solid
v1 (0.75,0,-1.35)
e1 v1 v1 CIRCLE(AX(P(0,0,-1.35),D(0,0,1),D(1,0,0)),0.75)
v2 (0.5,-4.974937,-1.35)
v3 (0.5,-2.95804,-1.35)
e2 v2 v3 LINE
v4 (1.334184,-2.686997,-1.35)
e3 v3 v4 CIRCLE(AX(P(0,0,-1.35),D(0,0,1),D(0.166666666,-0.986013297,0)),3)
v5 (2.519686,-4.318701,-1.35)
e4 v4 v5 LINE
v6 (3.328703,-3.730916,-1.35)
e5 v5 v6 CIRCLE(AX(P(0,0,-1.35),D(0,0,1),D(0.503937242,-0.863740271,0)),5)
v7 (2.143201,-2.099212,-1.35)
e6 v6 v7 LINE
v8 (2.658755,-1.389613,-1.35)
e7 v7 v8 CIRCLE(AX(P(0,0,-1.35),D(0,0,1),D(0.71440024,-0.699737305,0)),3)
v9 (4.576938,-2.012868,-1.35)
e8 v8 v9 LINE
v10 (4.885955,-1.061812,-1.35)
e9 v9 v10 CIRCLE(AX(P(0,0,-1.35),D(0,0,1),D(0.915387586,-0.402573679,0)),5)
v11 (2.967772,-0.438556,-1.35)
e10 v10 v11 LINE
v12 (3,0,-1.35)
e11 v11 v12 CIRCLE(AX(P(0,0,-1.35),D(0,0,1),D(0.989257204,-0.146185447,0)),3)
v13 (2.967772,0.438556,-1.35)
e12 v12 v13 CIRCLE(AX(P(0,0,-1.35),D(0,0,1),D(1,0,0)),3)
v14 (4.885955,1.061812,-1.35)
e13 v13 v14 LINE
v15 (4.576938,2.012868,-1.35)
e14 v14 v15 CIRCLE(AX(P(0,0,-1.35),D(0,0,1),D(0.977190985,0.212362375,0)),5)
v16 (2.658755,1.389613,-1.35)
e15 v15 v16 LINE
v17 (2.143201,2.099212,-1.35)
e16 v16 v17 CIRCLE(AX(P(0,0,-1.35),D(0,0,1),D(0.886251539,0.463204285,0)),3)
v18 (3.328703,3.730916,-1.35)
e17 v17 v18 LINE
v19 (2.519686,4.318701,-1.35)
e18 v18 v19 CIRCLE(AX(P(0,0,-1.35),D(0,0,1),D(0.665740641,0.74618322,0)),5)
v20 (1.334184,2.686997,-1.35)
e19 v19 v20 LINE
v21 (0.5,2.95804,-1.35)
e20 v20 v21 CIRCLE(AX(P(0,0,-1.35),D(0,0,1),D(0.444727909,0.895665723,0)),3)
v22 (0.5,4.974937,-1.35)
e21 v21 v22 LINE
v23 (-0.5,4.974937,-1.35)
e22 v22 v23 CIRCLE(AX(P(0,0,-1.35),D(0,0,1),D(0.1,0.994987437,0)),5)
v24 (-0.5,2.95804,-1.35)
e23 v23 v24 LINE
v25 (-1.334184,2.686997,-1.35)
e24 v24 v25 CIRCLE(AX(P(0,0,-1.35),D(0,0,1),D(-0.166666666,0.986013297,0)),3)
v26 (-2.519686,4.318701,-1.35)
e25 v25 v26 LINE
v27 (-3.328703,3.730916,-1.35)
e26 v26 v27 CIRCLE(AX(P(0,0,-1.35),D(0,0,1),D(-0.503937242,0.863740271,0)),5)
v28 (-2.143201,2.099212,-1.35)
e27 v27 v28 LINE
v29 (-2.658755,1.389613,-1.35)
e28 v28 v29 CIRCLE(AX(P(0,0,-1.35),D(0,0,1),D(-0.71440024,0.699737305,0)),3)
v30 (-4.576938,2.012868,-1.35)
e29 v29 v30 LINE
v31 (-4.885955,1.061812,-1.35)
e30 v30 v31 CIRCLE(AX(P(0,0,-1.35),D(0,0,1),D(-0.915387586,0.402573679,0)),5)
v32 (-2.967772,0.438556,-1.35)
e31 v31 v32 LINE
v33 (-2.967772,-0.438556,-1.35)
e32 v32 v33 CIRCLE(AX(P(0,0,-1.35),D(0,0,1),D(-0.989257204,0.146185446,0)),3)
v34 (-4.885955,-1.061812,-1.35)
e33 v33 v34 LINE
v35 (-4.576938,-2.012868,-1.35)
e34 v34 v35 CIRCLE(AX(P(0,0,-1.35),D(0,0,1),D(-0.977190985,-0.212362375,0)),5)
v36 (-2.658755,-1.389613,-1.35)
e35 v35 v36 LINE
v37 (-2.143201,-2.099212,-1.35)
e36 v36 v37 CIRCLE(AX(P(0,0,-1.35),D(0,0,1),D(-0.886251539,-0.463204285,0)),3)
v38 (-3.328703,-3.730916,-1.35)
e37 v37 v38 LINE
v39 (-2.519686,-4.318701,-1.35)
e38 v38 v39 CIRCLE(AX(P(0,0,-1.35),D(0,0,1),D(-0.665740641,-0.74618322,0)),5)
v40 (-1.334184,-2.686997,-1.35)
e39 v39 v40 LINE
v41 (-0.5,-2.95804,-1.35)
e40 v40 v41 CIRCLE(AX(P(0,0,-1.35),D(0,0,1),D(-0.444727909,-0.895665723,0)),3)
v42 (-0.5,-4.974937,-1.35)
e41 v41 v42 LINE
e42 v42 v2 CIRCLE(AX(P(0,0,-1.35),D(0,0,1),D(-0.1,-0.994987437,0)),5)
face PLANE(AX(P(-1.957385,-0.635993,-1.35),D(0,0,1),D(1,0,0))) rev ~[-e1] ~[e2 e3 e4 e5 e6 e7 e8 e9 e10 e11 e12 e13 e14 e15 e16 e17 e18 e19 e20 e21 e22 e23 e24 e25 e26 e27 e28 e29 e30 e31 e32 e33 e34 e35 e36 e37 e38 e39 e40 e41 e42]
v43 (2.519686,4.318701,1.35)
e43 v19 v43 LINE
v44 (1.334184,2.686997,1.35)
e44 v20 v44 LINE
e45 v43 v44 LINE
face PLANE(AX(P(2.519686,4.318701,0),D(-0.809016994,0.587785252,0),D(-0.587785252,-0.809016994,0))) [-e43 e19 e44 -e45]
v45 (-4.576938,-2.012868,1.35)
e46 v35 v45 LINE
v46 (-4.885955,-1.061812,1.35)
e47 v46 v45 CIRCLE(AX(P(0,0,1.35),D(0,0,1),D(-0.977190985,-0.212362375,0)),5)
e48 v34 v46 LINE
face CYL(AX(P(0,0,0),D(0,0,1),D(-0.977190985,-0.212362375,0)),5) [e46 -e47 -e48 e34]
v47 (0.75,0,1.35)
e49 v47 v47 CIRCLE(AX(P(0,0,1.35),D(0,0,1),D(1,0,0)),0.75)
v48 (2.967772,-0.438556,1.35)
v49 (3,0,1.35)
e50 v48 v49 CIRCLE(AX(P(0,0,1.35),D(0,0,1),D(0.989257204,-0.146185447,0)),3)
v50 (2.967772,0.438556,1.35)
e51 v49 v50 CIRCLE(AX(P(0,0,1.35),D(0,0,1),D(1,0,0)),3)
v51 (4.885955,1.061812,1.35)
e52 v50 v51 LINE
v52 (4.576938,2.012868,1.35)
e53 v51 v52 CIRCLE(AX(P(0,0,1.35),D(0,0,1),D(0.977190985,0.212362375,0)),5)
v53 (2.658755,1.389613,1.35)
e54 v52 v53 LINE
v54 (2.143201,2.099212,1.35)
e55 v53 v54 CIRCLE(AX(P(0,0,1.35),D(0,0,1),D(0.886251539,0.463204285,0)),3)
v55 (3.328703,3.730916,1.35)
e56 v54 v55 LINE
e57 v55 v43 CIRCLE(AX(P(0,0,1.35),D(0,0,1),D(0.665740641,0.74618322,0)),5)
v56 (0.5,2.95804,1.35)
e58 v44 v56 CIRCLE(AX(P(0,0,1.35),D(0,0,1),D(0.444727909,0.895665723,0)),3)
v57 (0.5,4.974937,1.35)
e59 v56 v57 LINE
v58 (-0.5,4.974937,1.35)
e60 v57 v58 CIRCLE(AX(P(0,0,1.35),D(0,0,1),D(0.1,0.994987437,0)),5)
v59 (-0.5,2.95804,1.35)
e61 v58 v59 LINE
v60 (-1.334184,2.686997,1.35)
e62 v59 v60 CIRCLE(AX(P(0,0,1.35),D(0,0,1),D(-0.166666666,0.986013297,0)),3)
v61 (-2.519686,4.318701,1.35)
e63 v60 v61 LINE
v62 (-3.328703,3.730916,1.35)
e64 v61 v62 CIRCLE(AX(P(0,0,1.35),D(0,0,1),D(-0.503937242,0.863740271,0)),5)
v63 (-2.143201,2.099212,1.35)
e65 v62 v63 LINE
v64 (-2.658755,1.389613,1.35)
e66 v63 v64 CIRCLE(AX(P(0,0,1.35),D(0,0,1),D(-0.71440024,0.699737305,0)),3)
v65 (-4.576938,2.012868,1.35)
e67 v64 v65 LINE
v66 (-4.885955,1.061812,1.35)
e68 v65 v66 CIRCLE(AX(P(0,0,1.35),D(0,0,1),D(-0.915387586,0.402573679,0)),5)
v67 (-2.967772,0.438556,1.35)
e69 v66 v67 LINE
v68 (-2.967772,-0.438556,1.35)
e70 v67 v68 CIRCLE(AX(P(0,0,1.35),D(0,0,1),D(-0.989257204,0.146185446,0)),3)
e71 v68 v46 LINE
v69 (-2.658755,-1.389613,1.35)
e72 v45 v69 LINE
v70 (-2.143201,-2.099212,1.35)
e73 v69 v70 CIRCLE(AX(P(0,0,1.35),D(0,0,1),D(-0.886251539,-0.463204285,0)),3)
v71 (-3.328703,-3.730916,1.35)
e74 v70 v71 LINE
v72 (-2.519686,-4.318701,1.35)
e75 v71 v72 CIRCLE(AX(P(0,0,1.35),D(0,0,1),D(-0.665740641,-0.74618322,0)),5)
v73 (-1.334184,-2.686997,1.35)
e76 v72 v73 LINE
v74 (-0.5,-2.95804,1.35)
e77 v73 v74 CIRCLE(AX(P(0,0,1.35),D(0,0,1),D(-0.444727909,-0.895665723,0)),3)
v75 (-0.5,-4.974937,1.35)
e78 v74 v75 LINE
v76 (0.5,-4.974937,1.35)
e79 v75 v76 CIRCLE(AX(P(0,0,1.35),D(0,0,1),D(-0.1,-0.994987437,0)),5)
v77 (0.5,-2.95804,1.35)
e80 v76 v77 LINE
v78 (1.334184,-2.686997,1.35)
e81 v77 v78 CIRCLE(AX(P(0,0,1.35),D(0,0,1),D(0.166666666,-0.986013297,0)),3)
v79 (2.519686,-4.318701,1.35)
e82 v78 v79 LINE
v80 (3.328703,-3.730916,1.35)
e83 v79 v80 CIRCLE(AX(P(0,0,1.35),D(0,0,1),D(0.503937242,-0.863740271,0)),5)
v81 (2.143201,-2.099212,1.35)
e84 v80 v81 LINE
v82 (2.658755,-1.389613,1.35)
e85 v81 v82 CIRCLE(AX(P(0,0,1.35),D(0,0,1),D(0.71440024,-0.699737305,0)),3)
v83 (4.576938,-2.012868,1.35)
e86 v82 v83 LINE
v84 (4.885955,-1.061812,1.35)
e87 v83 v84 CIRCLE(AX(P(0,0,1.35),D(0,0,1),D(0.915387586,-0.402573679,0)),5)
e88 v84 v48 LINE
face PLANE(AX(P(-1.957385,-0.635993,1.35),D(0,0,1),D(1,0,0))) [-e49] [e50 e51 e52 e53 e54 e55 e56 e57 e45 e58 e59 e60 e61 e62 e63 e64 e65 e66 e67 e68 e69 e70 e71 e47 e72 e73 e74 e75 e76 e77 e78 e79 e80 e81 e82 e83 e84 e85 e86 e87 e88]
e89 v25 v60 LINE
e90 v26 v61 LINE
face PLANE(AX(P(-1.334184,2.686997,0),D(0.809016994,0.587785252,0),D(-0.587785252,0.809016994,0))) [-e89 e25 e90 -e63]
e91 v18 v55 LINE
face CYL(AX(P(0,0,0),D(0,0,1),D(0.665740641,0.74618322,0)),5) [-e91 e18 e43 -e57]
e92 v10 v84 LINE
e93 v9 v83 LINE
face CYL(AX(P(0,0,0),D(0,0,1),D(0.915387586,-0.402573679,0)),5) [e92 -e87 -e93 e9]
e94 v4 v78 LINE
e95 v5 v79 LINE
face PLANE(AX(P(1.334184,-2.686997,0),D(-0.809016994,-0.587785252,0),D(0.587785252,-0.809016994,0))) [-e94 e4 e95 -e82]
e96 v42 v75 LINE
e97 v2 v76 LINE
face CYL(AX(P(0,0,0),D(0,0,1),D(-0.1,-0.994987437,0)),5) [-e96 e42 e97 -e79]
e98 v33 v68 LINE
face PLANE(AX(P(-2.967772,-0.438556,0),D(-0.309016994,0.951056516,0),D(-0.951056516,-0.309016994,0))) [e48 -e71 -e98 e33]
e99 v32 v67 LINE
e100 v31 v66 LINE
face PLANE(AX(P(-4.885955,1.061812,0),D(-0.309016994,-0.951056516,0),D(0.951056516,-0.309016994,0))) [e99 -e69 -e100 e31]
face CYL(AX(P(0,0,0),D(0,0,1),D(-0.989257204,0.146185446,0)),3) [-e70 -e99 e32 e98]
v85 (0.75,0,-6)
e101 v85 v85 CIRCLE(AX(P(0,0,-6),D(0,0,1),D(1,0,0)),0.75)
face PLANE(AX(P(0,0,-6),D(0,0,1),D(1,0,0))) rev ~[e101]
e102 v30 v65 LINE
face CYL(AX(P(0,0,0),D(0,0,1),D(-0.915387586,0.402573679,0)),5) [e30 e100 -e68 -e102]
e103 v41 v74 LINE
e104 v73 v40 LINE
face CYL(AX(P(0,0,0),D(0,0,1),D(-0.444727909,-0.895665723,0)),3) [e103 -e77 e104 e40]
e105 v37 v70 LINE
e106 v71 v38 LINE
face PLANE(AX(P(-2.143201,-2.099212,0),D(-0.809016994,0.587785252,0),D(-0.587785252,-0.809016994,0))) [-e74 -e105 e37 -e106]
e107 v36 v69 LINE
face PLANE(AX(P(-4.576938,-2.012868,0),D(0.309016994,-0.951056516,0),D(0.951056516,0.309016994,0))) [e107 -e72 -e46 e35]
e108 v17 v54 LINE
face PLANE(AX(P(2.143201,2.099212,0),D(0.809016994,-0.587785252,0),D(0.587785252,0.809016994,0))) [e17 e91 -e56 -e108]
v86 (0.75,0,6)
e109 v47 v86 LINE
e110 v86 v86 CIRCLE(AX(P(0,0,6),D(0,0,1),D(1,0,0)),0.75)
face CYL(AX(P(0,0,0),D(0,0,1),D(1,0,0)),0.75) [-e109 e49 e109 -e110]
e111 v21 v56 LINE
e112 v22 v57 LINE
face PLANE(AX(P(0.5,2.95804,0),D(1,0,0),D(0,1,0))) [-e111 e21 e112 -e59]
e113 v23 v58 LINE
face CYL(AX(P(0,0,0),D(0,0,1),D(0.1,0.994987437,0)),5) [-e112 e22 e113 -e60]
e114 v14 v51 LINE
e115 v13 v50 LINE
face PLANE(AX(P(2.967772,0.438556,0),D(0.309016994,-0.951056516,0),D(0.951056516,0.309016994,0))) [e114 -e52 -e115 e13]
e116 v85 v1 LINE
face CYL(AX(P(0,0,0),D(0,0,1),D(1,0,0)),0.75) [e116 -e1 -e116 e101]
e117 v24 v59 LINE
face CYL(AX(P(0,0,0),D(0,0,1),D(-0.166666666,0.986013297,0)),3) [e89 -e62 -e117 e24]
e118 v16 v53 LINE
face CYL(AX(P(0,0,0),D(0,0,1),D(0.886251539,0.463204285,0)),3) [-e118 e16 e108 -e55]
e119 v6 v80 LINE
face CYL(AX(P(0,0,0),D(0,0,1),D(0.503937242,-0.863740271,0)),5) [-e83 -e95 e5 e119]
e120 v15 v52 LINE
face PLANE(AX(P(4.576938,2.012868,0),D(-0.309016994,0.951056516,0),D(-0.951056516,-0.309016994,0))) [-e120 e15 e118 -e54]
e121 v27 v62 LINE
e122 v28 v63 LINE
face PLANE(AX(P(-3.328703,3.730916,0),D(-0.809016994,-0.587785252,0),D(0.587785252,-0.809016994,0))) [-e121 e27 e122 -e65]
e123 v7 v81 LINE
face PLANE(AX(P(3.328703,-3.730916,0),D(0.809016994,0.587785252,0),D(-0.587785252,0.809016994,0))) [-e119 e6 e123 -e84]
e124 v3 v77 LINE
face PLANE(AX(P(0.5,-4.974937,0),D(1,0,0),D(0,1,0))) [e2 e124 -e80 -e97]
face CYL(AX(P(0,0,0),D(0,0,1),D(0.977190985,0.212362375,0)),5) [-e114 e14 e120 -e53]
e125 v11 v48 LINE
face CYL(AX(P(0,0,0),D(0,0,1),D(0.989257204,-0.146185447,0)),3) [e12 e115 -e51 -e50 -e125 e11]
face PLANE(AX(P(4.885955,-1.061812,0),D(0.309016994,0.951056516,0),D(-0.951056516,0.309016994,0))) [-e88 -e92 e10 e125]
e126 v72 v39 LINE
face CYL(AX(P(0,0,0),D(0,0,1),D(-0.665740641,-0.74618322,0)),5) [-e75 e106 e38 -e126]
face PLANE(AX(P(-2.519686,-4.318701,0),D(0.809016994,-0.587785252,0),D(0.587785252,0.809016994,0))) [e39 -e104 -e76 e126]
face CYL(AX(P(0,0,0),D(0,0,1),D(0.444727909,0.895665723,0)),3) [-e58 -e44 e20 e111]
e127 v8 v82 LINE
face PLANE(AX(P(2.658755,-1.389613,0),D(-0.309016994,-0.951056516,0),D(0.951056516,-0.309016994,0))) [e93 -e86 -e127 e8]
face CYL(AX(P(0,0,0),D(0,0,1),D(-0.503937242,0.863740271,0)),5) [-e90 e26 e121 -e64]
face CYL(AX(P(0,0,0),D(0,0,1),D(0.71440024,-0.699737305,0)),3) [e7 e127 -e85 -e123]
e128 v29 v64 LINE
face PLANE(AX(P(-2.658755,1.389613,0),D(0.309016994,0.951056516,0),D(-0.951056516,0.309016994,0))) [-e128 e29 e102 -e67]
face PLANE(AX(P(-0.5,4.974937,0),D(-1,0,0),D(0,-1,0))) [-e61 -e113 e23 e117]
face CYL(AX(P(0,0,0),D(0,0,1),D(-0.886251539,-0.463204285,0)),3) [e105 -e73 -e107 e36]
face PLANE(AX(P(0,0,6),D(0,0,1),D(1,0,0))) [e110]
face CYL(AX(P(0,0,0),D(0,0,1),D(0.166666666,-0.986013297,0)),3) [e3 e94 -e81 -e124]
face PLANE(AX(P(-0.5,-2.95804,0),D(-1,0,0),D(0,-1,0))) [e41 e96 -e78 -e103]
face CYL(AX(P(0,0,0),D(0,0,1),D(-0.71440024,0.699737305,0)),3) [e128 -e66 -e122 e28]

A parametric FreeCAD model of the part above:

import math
import FreeCAD as App
import Part
import Sketcher

V = App.Vector
Q = App.Units.Quantity

doc = App.newDocument("Part")
params = doc.addObject("Spreadsheet::Sheet", "Params")
for row, (alias, value) in enumerate([
    ("sketch1_radius", "3 mm"),
    ("sketch1_radius2", "5 mm"),
    ("pad1_length", "2.7 mm"),
    ("sketch2_diameter", "1.5 mm"),
    ("pad2_length", "12 mm"),
], start=1):
    params.set(f"A{row}", alias)
    params.set(f"B{row}", "=" + value)
    params.setAlias(f"B{row}", alias)

body = doc.addObject("PartDesign::Body", "Body")

sketch1 = body.newObject("Sketcher::SketchObject", "Sketch")
sketch1.AttachmentSupport = (doc.getObject("XY_Plane"), [""])
sketch1.MapMode = "FlatFace"
sketch1.addGeometry([
    Part.ArcOfCircle(Part.Circle(V(0, 0, 0), V(0, 0, 1), 3), math.radians(-116.41), math.radians(-99.59)),
    Part.LineSegment(V(-0.5, -2.96, 0), V(-0.5, -4.97, 0)),
    Part.ArcOfCircle(Part.Circle(V(0, 0, 0), V(0, 0, 1), 5), math.radians(-95.74), math.radians(-84.26)),
    Part.LineSegment(V(0.5, -4.97, 0), V(0.5, -2.96, 0)),
    Part.ArcOfCircle(Part.Circle(V(0, 0, 0), V(0, 0, 1), 3), math.radians(-80.41), math.radians(-63.59)),
    Part.LineSegment(V(1.33, -2.69, 0), V(2.52, -4.32, 0)),
    Part.ArcOfCircle(Part.Circle(V(0, 0, 0), V(0, 0, 1), 5), math.radians(-59.74), math.radians(-48.26)),
    Part.LineSegment(V(3.33, -3.73, 0), V(2.14, -2.1, 0)),
    Part.ArcOfCircle(Part.Circle(V(0, 0, 0), V(0, 0, 1), 3), math.radians(-44.41), math.radians(-27.59)),
    Part.LineSegment(V(2.66, -1.39, 0), V(4.58, -2.01, 0)),
    Part.ArcOfCircle(Part.Circle(V(0, 0, 0), V(0, 0, 1), 5), math.radians(-23.74), math.radians(-12.26)),
    Part.LineSegment(V(4.89, -1.06, 0), V(2.97, -0.44, 0)),
    Part.ArcOfCircle(Part.Circle(V(0, 0, 0), V(0, 0, 1), 3), math.radians(-8.41), math.radians(0)),
    Part.ArcOfCircle(Part.Circle(V(0, 0, 0), V(0, 0, 1), 3), math.radians(0), math.radians(8.41)),
    Part.LineSegment(V(2.97, 0.44, 0), V(4.89, 1.06, 0)),
    Part.ArcOfCircle(Part.Circle(V(0, 0, 0), V(0, 0, 1), 5), math.radians(12.26), math.radians(23.74)),
    Part.LineSegment(V(4.58, 2.01, 0), V(2.66, 1.39, 0)),
    Part.ArcOfCircle(Part.Circle(V(0, 0, 0), V(0, 0, 1), 3), math.radians(27.59), math.radians(44.41)),
    Part.LineSegment(V(2.14, 2.1, 0), V(3.33, 3.73, 0)),
    Part.ArcOfCircle(Part.Circle(V(0, 0, 0), V(0, 0, 1), 5), math.radians(48.26), math.radians(59.74)),
    Part.LineSegment(V(2.52, 4.32, 0), V(1.33, 2.69, 0)),
    Part.ArcOfCircle(Part.Circle(V(0, 0, 0), V(0, 0, 1), 3), math.radians(63.59), math.radians(80.41)),
    Part.LineSegment(V(0.5, 2.96, 0), V(0.5, 4.97, 0)),
    Part.ArcOfCircle(Part.Circle(V(0, 0, 0), V(0, 0, 1), 5), math.radians(84.26), math.radians(95.74)),
    Part.LineSegment(V(-0.5, 4.97, 0), V(-0.5, 2.96, 0)),
    Part.ArcOfCircle(Part.Circle(V(0, 0, 0), V(0, 0, 1), 3), math.radians(99.59), math.radians(116.41)),
    Part.LineSegment(V(-1.33, 2.69, 0), V(-2.52, 4.32, 0)),
    Part.ArcOfCircle(Part.Circle(V(0, 0, 0), V(0, 0, 1), 5), math.radians(120.26), math.radians(131.74)),
    Part.LineSegment(V(-3.33, 3.73, 0), V(-2.14, 2.1, 0)),
    Part.ArcOfCircle(Part.Circle(V(0, 0, 0), V(0, 0, 1), 3), math.radians(135.59), math.radians(152.41)),
    Part.LineSegment(V(-2.66, 1.39, 0), V(-4.58, 2.01, 0)),
    Part.ArcOfCircle(Part.Circle(V(0, 0, 0), V(0, 0, 1), 5), math.radians(156.26), math.radians(167.74)),
    Part.LineSegment(V(-4.89, 1.06, 0), V(-2.97, 0.44, 0)),
    Part.ArcOfCircle(Part.Circle(V(0, 0, 0), V(0, 0, 1), 3), math.radians(171.59), math.radians(188.41)),
    Part.LineSegment(V(-2.97, -0.44, 0), V(-4.89, -1.06, 0)),
    Part.ArcOfCircle(Part.Circle(V(0, 0, 0), V(0, 0, 1), 5), math.radians(-167.74), math.radians(-156.26)),
    Part.LineSegment(V(-4.58, -2.01, 0), V(-2.66, -1.39, 0)),
    Part.ArcOfCircle(Part.Circle(V(0, 0, 0), V(0, 0, 1), 3), math.radians(-152.41), math.radians(-135.59)),
    Part.LineSegment(V(-2.14, -2.1, 0), V(-3.33, -3.73, 0)),
    Part.ArcOfCircle(Part.Circle(V(0, 0, 0), V(0, 0, 1), 5), math.radians(-131.74), math.radians(-120.26)),
    Part.LineSegment(V(-2.52, -4.32, 0), V(-1.33, -2.69, 0)),
], False)
sketch1.addConstraint([
    Sketcher.Constraint("Coincident", 0, 2, 1, 1),
    Sketcher.Constraint("Coincident", 1, 2, 2, 1),
    Sketcher.Constraint("Coincident", 2, 2, 3, 1),
    Sketcher.Constraint("Coincident", 3, 2, 4, 1),
    Sketcher.Constraint("Coincident", 4, 2, 5, 1),
    Sketcher.Constraint("Coincident", 5, 2, 6, 1),
    Sketcher.Constraint("Coincident", 6, 2, 7, 1),
    Sketcher.Constraint("Coincident", 7, 2, 8, 1),
    Sketcher.Constraint("Coincident", 8, 2, 9, 1),
    Sketcher.Constraint("Coincident", 9, 2, 10, 1),
    Sketcher.Constraint("Coincident", 10, 2, 11, 1),
    Sketcher.Constraint("Coincident", 11, 2, 12, 1),
    Sketcher.Constraint("Tangent", 12, 2, 13, 1),
    Sketcher.Constraint("Coincident", 13, 2, 14, 1),
    Sketcher.Constraint("Coincident", 14, 2, 15, 1),
    Sketcher.Constraint("Coincident", 15, 2, 16, 1),
    Sketcher.Constraint("Coincident", 16, 2, 17, 1),
    Sketcher.Constraint("Coincident", 17, 2, 18, 1),
    Sketcher.Constraint("Coincident", 18, 2, 19, 1),
    Sketcher.Constraint("Coincident", 19, 2, 20, 1),
    Sketcher.Constraint("Coincident", 20, 2, 21, 1),
    Sketcher.Constraint("Coincident", 21, 2, 22, 1),
    Sketcher.Constraint("Coincident", 22, 2, 23, 1),
    Sketcher.Constraint("Coincident", 23, 2, 24, 1),
    Sketcher.Constraint("Coincident", 24, 2, 25, 1),
    Sketcher.Constraint("Coincident", 25, 2, 26, 1),
    Sketcher.Constraint("Coincident", 26, 2, 27, 1),
    Sketcher.Constraint("Coincident", 27, 2, 28, 1),
    Sketcher.Constraint("Coincident", 28, 2, 29, 1),
    Sketcher.Constraint("Coincident", 29, 2, 30, 1),
    Sketcher.Constraint("Coincident", 30, 2, 31, 1),
    Sketcher.Constraint("Coincident", 31, 2, 32, 1),
    Sketcher.Constraint("Coincident", 32, 2, 33, 1),
    Sketcher.Constraint("Coincident", 33, 2, 34, 1),
    Sketcher.Constraint("Coincident", 34, 2, 35, 1),
    Sketcher.Constraint("Coincident", 35, 2, 36, 1),
    Sketcher.Constraint("Coincident", 36, 2, 37, 1),
    Sketcher.Constraint("Coincident", 37, 2, 38, 1),
    Sketcher.Constraint("Coincident", 38, 2, 39, 1),
    Sketcher.Constraint("Coincident", 39, 2, 40, 1),
    Sketcher.Constraint("Coincident", 40, 2, 0, 1),
    Sketcher.Constraint("Vertical", 1),
    Sketcher.Constraint("Vertical", 3),
    Sketcher.Constraint("Vertical", 22),
    Sketcher.Constraint("Vertical", 24),
    Sketcher.Constraint("Coincident", 0, 3, -1, 1),
    Sketcher.Constraint("Coincident", 2, 3, -1, 1),
    Sketcher.Constraint("Coincident", 4, 3, -1, 1),
    Sketcher.Constraint("Coincident", 6, 3, -1, 1),
    Sketcher.Constraint("Coincident", 8, 3, -1, 1),
    Sketcher.Constraint("Coincident", 10, 3, -1, 1),
    Sketcher.Constraint("Coincident", 12, 3, -1, 1),
    Sketcher.Constraint("Coincident", 15, 3, -1, 1),
    Sketcher.Constraint("Coincident", 17, 3, -1, 1),
    Sketcher.Constraint("Coincident", 19, 3, -1, 1),
    Sketcher.Constraint("Coincident", 21, 3, -1, 1),
    Sketcher.Constraint("Coincident", 23, 3, -1, 1),
    Sketcher.Constraint("Coincident", 25, 3, -1, 1),
    Sketcher.Constraint("Coincident", 27, 3, -1, 1),
    Sketcher.Constraint("Coincident", 29, 3, -1, 1),
    Sketcher.Constraint("Coincident", 31, 3, -1, 1),
    Sketcher.Constraint("Coincident", 33, 3, -1, 1),
    Sketcher.Constraint("Coincident", 35, 3, -1, 1),
    Sketcher.Constraint("Coincident", 37, 3, -1, 1),
    Sketcher.Constraint("Coincident", 39, 3, -1, 1),
    Sketcher.Constraint("Equal", 0, 4),
    Sketcher.Constraint("Equal", 2, 6),
    Sketcher.Constraint("Equal", 4, 8),
    Sketcher.Constraint("Equal", 6, 10),
    Sketcher.Constraint("Equal", 8, 12),
    Sketcher.Constraint("Equal", 12, 13),
    Sketcher.Constraint("Equal", 10, 15),
    Sketcher.Constraint("Equal", 13, 17),
    Sketcher.Constraint("Equal", 15, 19),
    Sketcher.Constraint("Equal", 17, 21),
    Sketcher.Constraint("Equal", 19, 23),
    Sketcher.Constraint("Equal", 21, 25),
    Sketcher.Constraint("Equal", 23, 27),
    Sketcher.Constraint("Equal", 25, 29),
    Sketcher.Constraint("Equal", 27, 31),
    Sketcher.Constraint("Equal", 29, 33),
    Sketcher.Constraint("Equal", 31, 35),
    Sketcher.Constraint("Equal", 33, 37),
    Sketcher.Constraint("Equal", 35, 39),
    Sketcher.Constraint("PointOnObject", 12, 2, -1),
    Sketcher.Constraint("Parallel", 5, 7),
    Sketcher.Constraint("Parallel", 9, 11),
    Sketcher.Constraint("Parallel", 14, 16),
    Sketcher.Constraint("Parallel", 18, 20),
    Sketcher.Constraint("Parallel", 7, 26),
    Sketcher.Constraint("Parallel", 26, 28),
    Sketcher.Constraint("Parallel", 11, 30),
    Sketcher.Constraint("Parallel", 30, 32),
    Sketcher.Constraint("Parallel", 16, 34),
    Sketcher.Constraint("Parallel", 34, 36),
    Sketcher.Constraint("Parallel", 20, 38),
    Sketcher.Constraint("Parallel", 38, 40),
    Sketcher.Constraint("Horizontal", 1, 2, 2, 2),
    Sketcher.Constraint("Horizontal", 22, 2, 23, 2),
    Sketcher.Constraint("Horizontal", 20, 2, 25, 2),
    Sketcher.Constraint("Horizontal", 19, 2, 26, 2),
    Sketcher.Constraint("Horizontal", 18, 2, 27, 2),
    Sketcher.Constraint("Horizontal", 16, 2, 29, 2),
    Sketcher.Constraint("Horizontal", 15, 2, 30, 2),
    Sketcher.Constraint("Horizontal", 14, 2, 31, 2),
    Sketcher.Constraint("Horizontal", 11, 2, 33, 2),
    Sketcher.Constraint("Horizontal", 9, 2, 35, 2),
    Sketcher.Constraint("Horizontal", 7, 2, 37, 2),
    Sketcher.Constraint("Horizontal", 5, 2, 39, 2),
    Sketcher.Constraint("Vertical", 11, 2, 13, 2),
    Sketcher.Constraint("Vertical", 9, 2, 15, 2),
    Sketcher.Constraint("Vertical", 7, 2, 17, 2),
    Sketcher.Constraint("Vertical", 5, 2, 19, 2),
    Sketcher.Constraint("Vertical", 3, 2, 21, 2),
    Sketcher.Constraint("Equal", 5, 7),
    Sketcher.Constraint("Equal", 7, 9),
    Sketcher.Constraint("Equal", 9, 11),
    Sketcher.Constraint("Radius", 0, 3.0),
    Sketcher.Constraint("Radius", 2, 5.0),
    Sketcher.Constraint("Angle", 5, Q("-54 deg")),
    Sketcher.Constraint("Angle", 9, Q("-18 deg")),
    Sketcher.Constraint("DistanceX", 0, 2, -1, 1, 0.5),
    Sketcher.Constraint("DistanceY", 5, 2, -1, 1, 4.318701),
])
sketch1.setExpression("Constraints[117]", "Params.sketch1_radius")
sketch1.setExpression("Constraints[118]", "Params.sketch1_radius2")
pad1 = body.newObject("PartDesign::Pad", "Pad")
pad1.Profile = sketch1
pad1.setExpression("Length", "Params.pad1_length")
pad1.Midplane = True

sketch2 = body.newObject("Sketcher::SketchObject", "Sketch001")
sketch2.AttachmentSupport = (doc.getObject("XY_Plane"), [""])
sketch2.MapMode = "FlatFace"
sketch2.addGeometry(Part.Circle(V(0, 0, 0), V(0, 0, 1), 0.8), False)
sketch2.addConstraint([
    Sketcher.Constraint("Coincident", 0, 3, -1, 1),
    Sketcher.Constraint("Diameter", 0, 1.5),
])
sketch2.setExpression("Constraints[1]", "Params.sketch2_diameter")
pad2 = body.newObject("PartDesign::Pad", "Pad001")
pad2.Profile = sketch2
pad2.setExpression("Length", "Params.pad2_length")
pad2.Midplane = True

doc.recompute()
